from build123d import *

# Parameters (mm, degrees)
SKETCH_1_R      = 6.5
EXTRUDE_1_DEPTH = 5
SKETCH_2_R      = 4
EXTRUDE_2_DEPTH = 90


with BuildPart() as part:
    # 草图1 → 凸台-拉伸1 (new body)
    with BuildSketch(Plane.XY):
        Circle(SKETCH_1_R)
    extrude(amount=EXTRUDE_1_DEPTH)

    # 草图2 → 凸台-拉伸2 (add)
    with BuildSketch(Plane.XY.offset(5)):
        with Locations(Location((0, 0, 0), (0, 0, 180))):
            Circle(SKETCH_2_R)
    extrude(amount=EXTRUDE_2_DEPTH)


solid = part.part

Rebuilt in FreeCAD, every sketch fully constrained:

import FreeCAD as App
import Part
import Sketcher
from FreeCAD import Vector

doc = App.newDocument("Part")
body = doc.addObject("PartDesign::Body", "Body")

# Sketch on XY plane
sketch1 = body.newObject("Sketcher::SketchObject", "Sketch")
sketch1.AttachmentSupport = (doc.getObject("XY_Plane"), [""])
sketch1.MapMode = "FlatFace"
sketch1.addGeometry(Part.Circle(Vector(0, 0, 0), Vector(0, 0, 1), 6), False)
sketch1.addConstraint(Sketcher.Constraint("Coincident", 0, 3, -1, 1))
sketch1.addConstraint(Sketcher.Constraint("Diameter", 0, 13.0))
pad1 = body.newObject("PartDesign::Pad", "Pad")
pad1.Profile = sketch1
pad1.Length = 5

# Sketch on XY plane
sketch2 = body.newObject("Sketcher::SketchObject", "Sketch001")
sketch2.AttachmentSupport = (doc.getObject("XY_Plane"), [""])
sketch2.MapMode = "FlatFace"
sketch2.AttachmentOffset = App.Placement(Vector(0, 0, 5), App.Rotation())
sketch2.addGeometry(Part.Circle(Vector(0, 0, 0), Vector(0, 0, 1), 4), False)
sketch2.addConstraint(Sketcher.Constraint("Coincident", 0, 3, -1, 1))
sketch2.addConstraint(Sketcher.Constraint("Diameter", 0, 8.0))
pad2 = body.newObject("PartDesign::Pad", "Pad001")
pad2.Profile = sketch2
pad2.Length = 90

doc.recompute()
